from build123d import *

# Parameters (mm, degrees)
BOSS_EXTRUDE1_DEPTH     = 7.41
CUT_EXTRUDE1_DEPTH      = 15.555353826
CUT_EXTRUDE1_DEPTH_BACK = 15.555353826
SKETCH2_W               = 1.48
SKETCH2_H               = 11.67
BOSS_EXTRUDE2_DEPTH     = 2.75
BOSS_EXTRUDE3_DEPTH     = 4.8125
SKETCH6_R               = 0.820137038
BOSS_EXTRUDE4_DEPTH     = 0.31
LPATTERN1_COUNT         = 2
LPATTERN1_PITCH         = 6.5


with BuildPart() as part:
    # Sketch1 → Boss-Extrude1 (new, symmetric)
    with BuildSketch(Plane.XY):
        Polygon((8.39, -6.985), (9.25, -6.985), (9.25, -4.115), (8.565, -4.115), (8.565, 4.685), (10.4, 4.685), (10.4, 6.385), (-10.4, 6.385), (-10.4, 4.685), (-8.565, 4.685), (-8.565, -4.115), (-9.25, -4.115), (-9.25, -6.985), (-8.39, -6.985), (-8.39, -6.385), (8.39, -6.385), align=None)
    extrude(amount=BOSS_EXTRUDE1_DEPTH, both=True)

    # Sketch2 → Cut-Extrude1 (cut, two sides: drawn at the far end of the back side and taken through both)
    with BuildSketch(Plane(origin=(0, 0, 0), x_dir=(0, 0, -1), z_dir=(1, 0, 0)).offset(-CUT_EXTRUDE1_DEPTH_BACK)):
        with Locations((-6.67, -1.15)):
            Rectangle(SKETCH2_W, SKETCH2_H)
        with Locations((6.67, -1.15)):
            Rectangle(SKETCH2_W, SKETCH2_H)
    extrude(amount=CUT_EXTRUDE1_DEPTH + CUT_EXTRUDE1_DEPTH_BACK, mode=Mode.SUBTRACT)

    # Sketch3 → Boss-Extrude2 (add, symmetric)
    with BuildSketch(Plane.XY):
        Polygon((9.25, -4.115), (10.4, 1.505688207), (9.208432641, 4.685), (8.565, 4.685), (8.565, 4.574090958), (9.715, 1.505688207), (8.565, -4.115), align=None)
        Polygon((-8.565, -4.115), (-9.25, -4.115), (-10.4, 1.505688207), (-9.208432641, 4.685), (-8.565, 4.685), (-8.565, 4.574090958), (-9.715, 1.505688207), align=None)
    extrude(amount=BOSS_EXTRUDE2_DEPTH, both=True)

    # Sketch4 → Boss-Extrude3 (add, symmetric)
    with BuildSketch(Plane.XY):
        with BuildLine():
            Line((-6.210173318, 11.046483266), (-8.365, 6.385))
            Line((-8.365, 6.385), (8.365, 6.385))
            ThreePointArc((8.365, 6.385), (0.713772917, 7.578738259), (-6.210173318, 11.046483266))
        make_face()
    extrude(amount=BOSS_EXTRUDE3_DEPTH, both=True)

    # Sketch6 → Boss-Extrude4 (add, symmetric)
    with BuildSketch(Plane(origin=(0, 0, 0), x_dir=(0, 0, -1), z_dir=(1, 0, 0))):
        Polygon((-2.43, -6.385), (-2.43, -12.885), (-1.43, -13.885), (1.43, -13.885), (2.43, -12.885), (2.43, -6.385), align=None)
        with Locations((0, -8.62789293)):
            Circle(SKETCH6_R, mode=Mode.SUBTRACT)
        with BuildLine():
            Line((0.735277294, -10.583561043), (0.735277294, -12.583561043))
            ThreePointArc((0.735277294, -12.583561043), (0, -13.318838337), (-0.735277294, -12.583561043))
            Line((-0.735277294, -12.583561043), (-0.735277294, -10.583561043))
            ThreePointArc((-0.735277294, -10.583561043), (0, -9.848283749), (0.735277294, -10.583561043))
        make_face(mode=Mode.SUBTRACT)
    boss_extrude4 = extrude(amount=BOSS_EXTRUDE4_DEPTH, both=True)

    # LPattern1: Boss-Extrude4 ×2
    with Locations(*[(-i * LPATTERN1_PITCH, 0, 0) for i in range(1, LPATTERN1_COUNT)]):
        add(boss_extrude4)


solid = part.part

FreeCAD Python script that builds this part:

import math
import FreeCAD as App
import Part
import Sketcher

doc = App.newDocument("Part")
body = doc.addObject("PartDesign::Body", "Body")

# Sketch on XY plane
sketch1 = body.newObject("Sketcher::SketchObject", "Sketch")
sketch1.AttachmentSupport = (doc.getObject("XY_Plane"), [""])
sketch1.MapMode = "FlatFace"
sketch1.addGeometry([
    Part.LineSegment(App.Vector(8.4, -7, 0), App.Vector(9.2, -7, 0)),  # 0
    Part.LineSegment(App.Vector(9.2, -7, 0), App.Vector(9.2, -4.1, 0)),  # 1
    Part.LineSegment(App.Vector(9.2, -4.1, 0), App.Vector(8.6, -4.1, 0)),  # 2
    Part.LineSegment(App.Vector(8.6, -4.1, 0), App.Vector(8.6, 4.7, 0)),  # 3
    Part.LineSegment(App.Vector(8.6, 4.7, 0), App.Vector(10.4, 4.7, 0)),  # 4
    Part.LineSegment(App.Vector(10.4, 4.7, 0), App.Vector(10.4, 6.4, 0)),  # 5
    Part.LineSegment(App.Vector(10.4, 6.4, 0), App.Vector(-10.4, 6.4, 0)),  # 6
    Part.LineSegment(App.Vector(-10.4, 6.4, 0), App.Vector(-10.4, 4.7, 0)),  # 7
    Part.LineSegment(App.Vector(-10.4, 4.7, 0), App.Vector(-8.6, 4.7, 0)),  # 8
    Part.LineSegment(App.Vector(-8.6, 4.7, 0), App.Vector(-8.6, -4.1, 0)),  # 9
    Part.LineSegment(App.Vector(-8.6, -4.1, 0), App.Vector(-9.2, -4.1, 0)),  # 10
    Part.LineSegment(App.Vector(-9.2, -4.1, 0), App.Vector(-9.2, -7, 0)),  # 11
    Part.LineSegment(App.Vector(-9.2, -7, 0), App.Vector(-8.4, -7, 0)),  # 12
    Part.LineSegment(App.Vector(-8.4, -7, 0), App.Vector(-8.4, -6.4, 0)),  # 13
    Part.LineSegment(App.Vector(-8.4, -6.4, 0), App.Vector(8.4, -6.4, 0)),  # 14
    Part.LineSegment(App.Vector(8.4, -6.4, 0), App.Vector(8.4, -7, 0)),  # 15
], False)
sketch1.addConstraint([
    Sketcher.Constraint("Coincident", 0, 2, 1, 1),
    Sketcher.Constraint("Coincident", 1, 2, 2, 1),
    Sketcher.Constraint("Coincident", 2, 2, 3, 1),
    Sketcher.Constraint("Coincident", 3, 2, 4, 1),
    Sketcher.Constraint("Coincident", 4, 2, 5, 1),
    Sketcher.Constraint("Coincident", 5, 2, 6, 1),
    Sketcher.Constraint("Coincident", 6, 2, 7, 1),
    Sketcher.Constraint("Coincident", 7, 2, 8, 1),
    Sketcher.Constraint("Coincident", 8, 2, 9, 1),
    Sketcher.Constraint("Coincident", 9, 2, 10, 1),
    Sketcher.Constraint("Coincident", 10, 2, 11, 1),
    Sketcher.Constraint("Coincident", 11, 2, 12, 1),
    Sketcher.Constraint("Coincident", 12, 2, 13, 1),
    Sketcher.Constraint("Coincident", 13, 2, 14, 1),
    Sketcher.Constraint("Coincident", 14, 2, 15, 1),
    Sketcher.Constraint("Coincident", 15, 2, 0, 1),
    Sketcher.Constraint("Horizontal", 0),
    Sketcher.Constraint("Vertical", 1),
    Sketcher.Constraint("Horizontal", 2),
    Sketcher.Constraint("Vertical", 3),
    Sketcher.Constraint("Horizontal", 4),
    Sketcher.Constraint("Vertical", 5),
    Sketcher.Constraint("Horizontal", 6),
    Sketcher.Constraint("Vertical", 7),
    Sketcher.Constraint("Horizontal", 8),
    Sketcher.Constraint("Vertical", 9),
    Sketcher.Constraint("Horizontal", 10),
    Sketcher.Constraint("Vertical", 11),
    Sketcher.Constraint("Horizontal", 12),
    Sketcher.Constraint("Vertical", 13),
    Sketcher.Constraint("Horizontal", 14),
    Sketcher.Constraint("Vertical", 15),
    Sketcher.Constraint("Symmetric", 4, 2, 7, 2, -2),
    Sketcher.Constraint("Symmetric", 2, 2, 9, 2, -2),
    Sketcher.Constraint("Symmetric", 0, 2, 11, 2, -2),
    Sketcher.Constraint("Equal", 0, 12),
    Sketcher.Constraint("DistanceX", 6, 2, 6, 1, 20.8),
    Sketcher.Constraint("DistanceY", 3, 1, 3, 2, 8.8),
    Sketcher.Constraint("DistanceY", 5, 1, 5, 2, 1.7),
    Sketcher.Constraint("DistanceY", 13, 1, 13, 2, 0.6),
    Sketcher.Constraint("DistanceX", 0, 1, 0, 2, 0.86),
    Sketcher.Constraint("DistanceX", 14, 1, 14, 2, 16.78),
    Sketcher.Constraint("DistanceY", 1, 1, 1, 2, 2.87),
    Sketcher.Constraint("DistanceX", 2, 2, 2, 1, 0.685),
    Sketcher.Constraint("DistanceY", 0, 2, -1, 1, 6.985),
])
pad1 = body.newObject("PartDesign::Pad", "Pad")
pad1.Profile = sketch1
pad1.Length = 14.82
pad1.Midplane = True

# Sketch on YZ plane
sketch2 = body.newObject("Sketcher::SketchObject", "Sketch001")
sketch2.AttachmentSupport = (doc.getObject("YZ_Plane"), [""])
sketch2.MapMode = "FlatFace"
sketch2.addGeometry([
    Part.LineSegment(App.Vector(4.7, 7.4, 0), App.Vector(-7, 7.4, 0)),  # 0
    Part.LineSegment(App.Vector(-7, 7.4, 0), App.Vector(-7, 5.9, 0)),  # 1
    Part.LineSegment(App.Vector(-7, 5.9, 0), App.Vector(4.7, 5.9, 0)),  # 2
    Part.LineSegment(App.Vector(4.7, 5.9, 0), App.Vector(4.7, 7.4, 0)),  # 3
    Part.LineSegment(App.Vector(4.7, -5.9, 0), App.Vector(-7, -5.9, 0)),  # 4
    Part.LineSegment(App.Vector(-7, -5.9, 0), App.Vector(-7, -7.4, 0)),  # 5
    Part.LineSegment(App.Vector(-7, -7.4, 0), App.Vector(4.7, -7.4, 0)),  # 6
    Part.LineSegment(App.Vector(4.7, -7.4, 0), App.Vector(4.7, -5.9, 0)),  # 7
], False)
sketch2.addConstraint([
    Sketcher.Constraint("Coincident", 0, 2, 1, 1),
    Sketcher.Constraint("Coincident", 1, 2, 2, 1),
    Sketcher.Constraint("Coincident", 2, 2, 3, 1),
    Sketcher.Constraint("Coincident", 3, 2, 0, 1),
    Sketcher.Constraint("Coincident", 4, 2, 5, 1),
    Sketcher.Constraint("Coincident", 5, 2, 6, 1),
    Sketcher.Constraint("Coincident", 6, 2, 7, 1),
    Sketcher.Constraint("Coincident", 7, 2, 4, 1),
    Sketcher.Constraint("Horizontal", 0),
    Sketcher.Constraint("Vertical", 1),
    Sketcher.Constraint("Horizontal", 2),
    Sketcher.Constraint("Vertical", 3),
    Sketcher.Constraint("Horizontal", 4),
    Sketcher.Constraint("Vertical", 5),
    Sketcher.Constraint("Horizontal", 6),
    Sketcher.Constraint("Vertical", 7),
    Sketcher.Constraint("Symmetric", 1, 2, 4, 2, -1),
    Sketcher.Constraint("Symmetric", 3, 2, 6, 2, -1),
    Sketcher.Constraint("DistanceX", 0, 2, 0, 1, 11.67),
    Sketcher.Constraint("DistanceY", 1, 2, 1, 1, 1.48),
    Sketcher.Constraint("DistanceY", -1, 1, 0, 2, 7.41),
    Sketcher.Constraint("DistanceX", 0, 2, -1, 1, 6.985),
])
pocket1 = body.newObject("PartDesign::Pocket", "Pocket")
pocket1.Profile = sketch2
pocket1.Type = "ThroughAll"
pocket1.Midplane = True

# Sketch on XY plane
sketch3 = body.newObject("Sketcher::SketchObject", "Sketch002")
sketch3.AttachmentSupport = (doc.getObject("XY_Plane"), [""])
sketch3.MapMode = "FlatFace"
sketch3.addGeometry([
    Part.LineSegment(App.Vector(9.25, -4.12, 0), App.Vector(10.4, 1.51, 0)),  # 0
    Part.LineSegment(App.Vector(10.4, 1.51, 0), App.Vector(9.21, 4.68, 0)),  # 1
    Part.LineSegment(App.Vector(9.21, 4.68, 0), App.Vector(8.56, 4.68, 0)),  # 2
    Part.LineSegment(App.Vector(8.56, 4.68, 0), App.Vector(8.56, 4.57, 0)),  # 3
    Part.LineSegment(App.Vector(8.56, 4.57, 0), App.Vector(9.71, 1.51, 0)),  # 4
    Part.LineSegment(App.Vector(9.71, 1.51, 0), App.Vector(8.56, -4.12, 0)),  # 5
    Part.LineSegment(App.Vector(8.56, -4.12, 0), App.Vector(9.25, -4.12, 0)),  # 6
    Part.LineSegment(App.Vector(-9.25, -4.12, 0), App.Vector(-8.56, -4.12, 0)),  # 7
    Part.LineSegment(App.Vector(-8.56, -4.12, 0), App.Vector(-9.71, 1.51, 0)),  # 8
    Part.LineSegment(App.Vector(-9.71, 1.51, 0), App.Vector(-8.56, 4.57, 0)),  # 9
    Part.LineSegment(App.Vector(-8.56, 4.57, 0), App.Vector(-8.56, 4.68, 0)),  # 10
    Part.LineSegment(App.Vector(-8.56, 4.68, 0), App.Vector(-9.21, 4.68, 0)),  # 11
    Part.LineSegment(App.Vector(-9.21, 4.68, 0), App.Vector(-10.4, 1.51, 0)),  # 12
    Part.LineSegment(App.Vector(-10.4, 1.51, 0), App.Vector(-9.25, -4.12, 0)),  # 13
], False)
sketch3.addConstraint([
    Sketcher.Constraint("Coincident", 0, 2, 1, 1),
    Sketcher.Constraint("Coincident", 1, 2, 2, 1),
    Sketcher.Constraint("Coincident", 2, 2, 3, 1),
    Sketcher.Constraint("Coincident", 3, 2, 4, 1),
    Sketcher.Constraint("Coincident", 4, 2, 5, 1),
    Sketcher.Constraint("Coincident", 5, 2, 6, 1),
    Sketcher.Constraint("Coincident", 6, 2, 0, 1),
    Sketcher.Constraint("Coincident", 7, 2, 8, 1),
    Sketcher.Constraint("Coincident", 8, 2, 9, 1),
    Sketcher.Constraint("Coincident", 9, 2, 10, 1),
    Sketcher.Constraint("Coincident", 10, 2, 11, 1),
    Sketcher.Constraint("Coincident", 11, 2, 12, 1),
    Sketcher.Constraint("Coincident", 12, 2, 13, 1),
    Sketcher.Constraint("Coincident", 13, 2, 7, 1),
    Sketcher.Constraint("Horizontal", 2),
    Sketcher.Constraint("Vertical", 3),
    Sketcher.Constraint("Horizontal", 6),
    Sketcher.Constraint("Horizontal", 7),
    Sketcher.Constraint("Vertical", 10),
    Sketcher.Constraint("Horizontal", 11),
    Sketcher.Constraint("Symmetric", 5, 2, 7, 2, -2),
    Sketcher.Constraint("Symmetric", 4, 2, 8, 2, -2),
    Sketcher.Constraint("Symmetric", 3, 2, 9, 2, -2),
    Sketcher.Constraint("Symmetric", 1, 2, 11, 2, -2),
    Sketcher.Constraint("Symmetric", 0, 2, 12, 2, -2),
    Sketcher.Constraint("Parallel", 1, 4),
    Sketcher.Constraint("Parallel", 0, 5),
    Sketcher.Constraint("Parallel", 8, 13),
    Sketcher.Constraint("Horizontal", 0, 2, 4, 2),
    Sketcher.Constraint("Vertical", 3, 2, 5, 2),
    Sketcher.Constraint("DistanceX", -1, 1, 0, 2, 10.4),
    Sketcher.Constraint("DistanceY", 5, 2, 2, 2, 8.8),
    Sketcher.Constraint("DistanceX", 6, 1, 6, 2, 0.685),
    Sketcher.Constraint("DistanceX", -1, 1, 6, 2, 9.25),
    Sketcher.Constraint("DistanceY", -1, 1, 1, 2, 4.685),
    Sketcher.Constraint("DistanceY", 3, 2, 3, 1, 0.110909),
    Sketcher.Constraint("Distance", 1, 3.39527),
])
pad2 = body.newObject("PartDesign::Pad", "Pad001")
pad2.Profile = sketch3
pad2.Length = 5.5
pad2.Midplane = True

# Sketch on XY plane
sketch4 = body.newObject("Sketcher::SketchObject", "Sketch003")
sketch4.AttachmentSupport = (doc.getObject("XY_Plane"), [""])
sketch4.MapMode = "FlatFace"
sketch4.addGeometry([
    Part.LineSegment(App.Vector(-6, 11, 0), App.Vector(-8, 6, 0)),
    Part.LineSegment(App.Vector(-8, 6, 0), App.Vector(8, 6, 0)),
    Part.ArcOfCircle(Part.Circle(App.Vector(8, 32, 0), App.Vector(0, 0, 1), 25), math.radians(-125), math.radians(-90)),
], False)
sketch4.addConstraint([
    Sketcher.Constraint("Coincident", 0, 2, 1, 1),
    Sketcher.Constraint("Tangent", 1, 2, 2, 2),
    Sketcher.Constraint("Coincident", 2, 1, 0, 1),
    Sketcher.Constraint("Horizontal", 1),
    Sketcher.Constraint("DistanceX", 1, 1, 1, 2, 16.73),
    Sketcher.Constraint("DistanceX", -1, 1, 2, 3, 8.365),
    Sketcher.Constraint("DistanceY", -1, 1, 0, 2, 6.385),
    Sketcher.Constraint("Radius", 2, 25.117016),
    Sketcher.Constraint("Distance", 0, 5.135436),
])
pad3 = body.newObject("PartDesign::Pad", "Pad002")
pad3.Profile = sketch4
pad3.Length = 9.625
pad3.Midplane = True

# Sketch on YZ plane
sketch5 = body.newObject("Sketcher::SketchObject", "Sketch004")
sketch5.AttachmentSupport = (doc.getObject("YZ_Plane"), [""])
sketch5.MapMode = "FlatFace"
sketch5.addGeometry([
    Part.LineSegment(App.Vector(-6.4, 2.4, 0), App.Vector(-12.9, 2.4, 0)),  # 0
    Part.LineSegment(App.Vector(-12.9, 2.4, 0), App.Vector(-13.9, 1.4, 0)),  # 1
    Part.LineSegment(App.Vector(-13.9, 1.4, 0), App.Vector(-13.9, -1.4, 0)),  # 2
    Part.LineSegment(App.Vector(-13.9, -1.4, 0), App.Vector(-12.9, -2.4, 0)),  # 3
    Part.LineSegment(App.Vector(-12.9, -2.4, 0), App.Vector(-6.4, -2.4, 0)),  # 4
    Part.LineSegment(App.Vector(-6.4, -2.4, 0), App.Vector(-6.4, 2.4, 0)),  # 5
    Part.ArcOfCircle(Part.Circle(App.Vector(-10.6, 0, 0), App.Vector(0, 0, 1), 0.7), math.radians(-90), math.radians(90)),  # 6
    Part.LineSegment(App.Vector(-10.6, -0.7, 0), App.Vector(-12.6, -0.7, 0)),  # 7
    Part.ArcOfCircle(Part.Circle(App.Vector(-12.6, 0, 0), App.Vector(0, 0, 1), 0.7), math.radians(90), math.radians(270)),  # 8
    Part.LineSegment(App.Vector(-12.6, 0.7, 0), App.Vector(-10.6, 0.7, 0)),  # 9
    Part.Circle(App.Vector(-8.6, 0, 0), App.Vector(0, 0, 1), 0.8),  # 10
], False)
sketch5.addConstraint([
    Sketcher.Constraint("Coincident", 0, 2, 1, 1),
    Sketcher.Constraint("Coincident", 1, 2, 2, 1),
    Sketcher.Constraint("Coincident", 2, 2, 3, 1),
    Sketcher.Constraint("Coincident", 3, 2, 4, 1),
    Sketcher.Constraint("Coincident", 4, 2, 5, 1),
    Sketcher.Constraint("Coincident", 5, 2, 0, 1),
    Sketcher.Constraint("Tangent", 6, 1, 7, 1),
    Sketcher.Constraint("Tangent", 7, 2, 8, 2),
    Sketcher.Constraint("Tangent", 8, 1, 9, 1),
    Sketcher.Constraint("Tangent", 9, 2, 6, 2),
    Sketcher.Constraint("Horizontal", 0),
    Sketcher.Constraint("Vertical", 2),
    Sketcher.Constraint("Horizontal", 4),
    Sketcher.Constraint("Vertical", 5),
    Sketcher.Constraint("Horizontal", 7),
    Sketcher.Constraint("Horizontal", 9),
    Sketcher.Constraint("Symmetric", 0, 2, 3, 2, -1),
    Sketcher.Constraint("PointOnObject", 6, 3, -1),
    Sketcher.Constraint("PointOnObject", 10, 3, -1),
    Sketcher.Constraint("Perpendicular", 1, 3),
    Sketcher.Constraint("Equal", 1, 3),
    Sketcher.Constraint("DistanceX", 7, 2, 7, 1, 2.0),
    Sketcher.Constraint("DistanceX", 0, 2, 0, 1, 6.5),
    Sketcher.Constraint("DistanceX", 1, 2, 0, 2, 1.0),
    Sketcher.Constraint("DistanceY", 2, 2, 2, 1, 2.86),
    Sketcher.Constraint("Diameter", 10, 1.640274),
    Sketcher.Constraint("DistanceX", 0, 2, -1, 1, 12.885),
    Sketcher.Constraint("Radius", 6, 0.735277),
    Sketcher.Constraint("DistanceX", 6, 3, -1, 1, 10.583561),
    Sketcher.Constraint("DistanceX", 6, 3, 10, 3, 1.955668),
])
pad4 = body.newObject("PartDesign::Pad", "Pad003")
pad4.Profile = sketch5
pad4.Length = 0.62
pad4.Midplane = True
doc.recompute()

linearpattern = body.newObject("PartDesign::LinearPattern", "LinearPattern")
linearpattern.Originals = [pad4]
linearpattern.Direction = (doc.getObject("X_Axis"), [""])
linearpattern.Mode = "offset"
linearpattern.Offset = 6.5
linearpattern.Occurrences = 2
linearpattern.Reversed = True
body.Tip = linearpattern

doc.recompute()
